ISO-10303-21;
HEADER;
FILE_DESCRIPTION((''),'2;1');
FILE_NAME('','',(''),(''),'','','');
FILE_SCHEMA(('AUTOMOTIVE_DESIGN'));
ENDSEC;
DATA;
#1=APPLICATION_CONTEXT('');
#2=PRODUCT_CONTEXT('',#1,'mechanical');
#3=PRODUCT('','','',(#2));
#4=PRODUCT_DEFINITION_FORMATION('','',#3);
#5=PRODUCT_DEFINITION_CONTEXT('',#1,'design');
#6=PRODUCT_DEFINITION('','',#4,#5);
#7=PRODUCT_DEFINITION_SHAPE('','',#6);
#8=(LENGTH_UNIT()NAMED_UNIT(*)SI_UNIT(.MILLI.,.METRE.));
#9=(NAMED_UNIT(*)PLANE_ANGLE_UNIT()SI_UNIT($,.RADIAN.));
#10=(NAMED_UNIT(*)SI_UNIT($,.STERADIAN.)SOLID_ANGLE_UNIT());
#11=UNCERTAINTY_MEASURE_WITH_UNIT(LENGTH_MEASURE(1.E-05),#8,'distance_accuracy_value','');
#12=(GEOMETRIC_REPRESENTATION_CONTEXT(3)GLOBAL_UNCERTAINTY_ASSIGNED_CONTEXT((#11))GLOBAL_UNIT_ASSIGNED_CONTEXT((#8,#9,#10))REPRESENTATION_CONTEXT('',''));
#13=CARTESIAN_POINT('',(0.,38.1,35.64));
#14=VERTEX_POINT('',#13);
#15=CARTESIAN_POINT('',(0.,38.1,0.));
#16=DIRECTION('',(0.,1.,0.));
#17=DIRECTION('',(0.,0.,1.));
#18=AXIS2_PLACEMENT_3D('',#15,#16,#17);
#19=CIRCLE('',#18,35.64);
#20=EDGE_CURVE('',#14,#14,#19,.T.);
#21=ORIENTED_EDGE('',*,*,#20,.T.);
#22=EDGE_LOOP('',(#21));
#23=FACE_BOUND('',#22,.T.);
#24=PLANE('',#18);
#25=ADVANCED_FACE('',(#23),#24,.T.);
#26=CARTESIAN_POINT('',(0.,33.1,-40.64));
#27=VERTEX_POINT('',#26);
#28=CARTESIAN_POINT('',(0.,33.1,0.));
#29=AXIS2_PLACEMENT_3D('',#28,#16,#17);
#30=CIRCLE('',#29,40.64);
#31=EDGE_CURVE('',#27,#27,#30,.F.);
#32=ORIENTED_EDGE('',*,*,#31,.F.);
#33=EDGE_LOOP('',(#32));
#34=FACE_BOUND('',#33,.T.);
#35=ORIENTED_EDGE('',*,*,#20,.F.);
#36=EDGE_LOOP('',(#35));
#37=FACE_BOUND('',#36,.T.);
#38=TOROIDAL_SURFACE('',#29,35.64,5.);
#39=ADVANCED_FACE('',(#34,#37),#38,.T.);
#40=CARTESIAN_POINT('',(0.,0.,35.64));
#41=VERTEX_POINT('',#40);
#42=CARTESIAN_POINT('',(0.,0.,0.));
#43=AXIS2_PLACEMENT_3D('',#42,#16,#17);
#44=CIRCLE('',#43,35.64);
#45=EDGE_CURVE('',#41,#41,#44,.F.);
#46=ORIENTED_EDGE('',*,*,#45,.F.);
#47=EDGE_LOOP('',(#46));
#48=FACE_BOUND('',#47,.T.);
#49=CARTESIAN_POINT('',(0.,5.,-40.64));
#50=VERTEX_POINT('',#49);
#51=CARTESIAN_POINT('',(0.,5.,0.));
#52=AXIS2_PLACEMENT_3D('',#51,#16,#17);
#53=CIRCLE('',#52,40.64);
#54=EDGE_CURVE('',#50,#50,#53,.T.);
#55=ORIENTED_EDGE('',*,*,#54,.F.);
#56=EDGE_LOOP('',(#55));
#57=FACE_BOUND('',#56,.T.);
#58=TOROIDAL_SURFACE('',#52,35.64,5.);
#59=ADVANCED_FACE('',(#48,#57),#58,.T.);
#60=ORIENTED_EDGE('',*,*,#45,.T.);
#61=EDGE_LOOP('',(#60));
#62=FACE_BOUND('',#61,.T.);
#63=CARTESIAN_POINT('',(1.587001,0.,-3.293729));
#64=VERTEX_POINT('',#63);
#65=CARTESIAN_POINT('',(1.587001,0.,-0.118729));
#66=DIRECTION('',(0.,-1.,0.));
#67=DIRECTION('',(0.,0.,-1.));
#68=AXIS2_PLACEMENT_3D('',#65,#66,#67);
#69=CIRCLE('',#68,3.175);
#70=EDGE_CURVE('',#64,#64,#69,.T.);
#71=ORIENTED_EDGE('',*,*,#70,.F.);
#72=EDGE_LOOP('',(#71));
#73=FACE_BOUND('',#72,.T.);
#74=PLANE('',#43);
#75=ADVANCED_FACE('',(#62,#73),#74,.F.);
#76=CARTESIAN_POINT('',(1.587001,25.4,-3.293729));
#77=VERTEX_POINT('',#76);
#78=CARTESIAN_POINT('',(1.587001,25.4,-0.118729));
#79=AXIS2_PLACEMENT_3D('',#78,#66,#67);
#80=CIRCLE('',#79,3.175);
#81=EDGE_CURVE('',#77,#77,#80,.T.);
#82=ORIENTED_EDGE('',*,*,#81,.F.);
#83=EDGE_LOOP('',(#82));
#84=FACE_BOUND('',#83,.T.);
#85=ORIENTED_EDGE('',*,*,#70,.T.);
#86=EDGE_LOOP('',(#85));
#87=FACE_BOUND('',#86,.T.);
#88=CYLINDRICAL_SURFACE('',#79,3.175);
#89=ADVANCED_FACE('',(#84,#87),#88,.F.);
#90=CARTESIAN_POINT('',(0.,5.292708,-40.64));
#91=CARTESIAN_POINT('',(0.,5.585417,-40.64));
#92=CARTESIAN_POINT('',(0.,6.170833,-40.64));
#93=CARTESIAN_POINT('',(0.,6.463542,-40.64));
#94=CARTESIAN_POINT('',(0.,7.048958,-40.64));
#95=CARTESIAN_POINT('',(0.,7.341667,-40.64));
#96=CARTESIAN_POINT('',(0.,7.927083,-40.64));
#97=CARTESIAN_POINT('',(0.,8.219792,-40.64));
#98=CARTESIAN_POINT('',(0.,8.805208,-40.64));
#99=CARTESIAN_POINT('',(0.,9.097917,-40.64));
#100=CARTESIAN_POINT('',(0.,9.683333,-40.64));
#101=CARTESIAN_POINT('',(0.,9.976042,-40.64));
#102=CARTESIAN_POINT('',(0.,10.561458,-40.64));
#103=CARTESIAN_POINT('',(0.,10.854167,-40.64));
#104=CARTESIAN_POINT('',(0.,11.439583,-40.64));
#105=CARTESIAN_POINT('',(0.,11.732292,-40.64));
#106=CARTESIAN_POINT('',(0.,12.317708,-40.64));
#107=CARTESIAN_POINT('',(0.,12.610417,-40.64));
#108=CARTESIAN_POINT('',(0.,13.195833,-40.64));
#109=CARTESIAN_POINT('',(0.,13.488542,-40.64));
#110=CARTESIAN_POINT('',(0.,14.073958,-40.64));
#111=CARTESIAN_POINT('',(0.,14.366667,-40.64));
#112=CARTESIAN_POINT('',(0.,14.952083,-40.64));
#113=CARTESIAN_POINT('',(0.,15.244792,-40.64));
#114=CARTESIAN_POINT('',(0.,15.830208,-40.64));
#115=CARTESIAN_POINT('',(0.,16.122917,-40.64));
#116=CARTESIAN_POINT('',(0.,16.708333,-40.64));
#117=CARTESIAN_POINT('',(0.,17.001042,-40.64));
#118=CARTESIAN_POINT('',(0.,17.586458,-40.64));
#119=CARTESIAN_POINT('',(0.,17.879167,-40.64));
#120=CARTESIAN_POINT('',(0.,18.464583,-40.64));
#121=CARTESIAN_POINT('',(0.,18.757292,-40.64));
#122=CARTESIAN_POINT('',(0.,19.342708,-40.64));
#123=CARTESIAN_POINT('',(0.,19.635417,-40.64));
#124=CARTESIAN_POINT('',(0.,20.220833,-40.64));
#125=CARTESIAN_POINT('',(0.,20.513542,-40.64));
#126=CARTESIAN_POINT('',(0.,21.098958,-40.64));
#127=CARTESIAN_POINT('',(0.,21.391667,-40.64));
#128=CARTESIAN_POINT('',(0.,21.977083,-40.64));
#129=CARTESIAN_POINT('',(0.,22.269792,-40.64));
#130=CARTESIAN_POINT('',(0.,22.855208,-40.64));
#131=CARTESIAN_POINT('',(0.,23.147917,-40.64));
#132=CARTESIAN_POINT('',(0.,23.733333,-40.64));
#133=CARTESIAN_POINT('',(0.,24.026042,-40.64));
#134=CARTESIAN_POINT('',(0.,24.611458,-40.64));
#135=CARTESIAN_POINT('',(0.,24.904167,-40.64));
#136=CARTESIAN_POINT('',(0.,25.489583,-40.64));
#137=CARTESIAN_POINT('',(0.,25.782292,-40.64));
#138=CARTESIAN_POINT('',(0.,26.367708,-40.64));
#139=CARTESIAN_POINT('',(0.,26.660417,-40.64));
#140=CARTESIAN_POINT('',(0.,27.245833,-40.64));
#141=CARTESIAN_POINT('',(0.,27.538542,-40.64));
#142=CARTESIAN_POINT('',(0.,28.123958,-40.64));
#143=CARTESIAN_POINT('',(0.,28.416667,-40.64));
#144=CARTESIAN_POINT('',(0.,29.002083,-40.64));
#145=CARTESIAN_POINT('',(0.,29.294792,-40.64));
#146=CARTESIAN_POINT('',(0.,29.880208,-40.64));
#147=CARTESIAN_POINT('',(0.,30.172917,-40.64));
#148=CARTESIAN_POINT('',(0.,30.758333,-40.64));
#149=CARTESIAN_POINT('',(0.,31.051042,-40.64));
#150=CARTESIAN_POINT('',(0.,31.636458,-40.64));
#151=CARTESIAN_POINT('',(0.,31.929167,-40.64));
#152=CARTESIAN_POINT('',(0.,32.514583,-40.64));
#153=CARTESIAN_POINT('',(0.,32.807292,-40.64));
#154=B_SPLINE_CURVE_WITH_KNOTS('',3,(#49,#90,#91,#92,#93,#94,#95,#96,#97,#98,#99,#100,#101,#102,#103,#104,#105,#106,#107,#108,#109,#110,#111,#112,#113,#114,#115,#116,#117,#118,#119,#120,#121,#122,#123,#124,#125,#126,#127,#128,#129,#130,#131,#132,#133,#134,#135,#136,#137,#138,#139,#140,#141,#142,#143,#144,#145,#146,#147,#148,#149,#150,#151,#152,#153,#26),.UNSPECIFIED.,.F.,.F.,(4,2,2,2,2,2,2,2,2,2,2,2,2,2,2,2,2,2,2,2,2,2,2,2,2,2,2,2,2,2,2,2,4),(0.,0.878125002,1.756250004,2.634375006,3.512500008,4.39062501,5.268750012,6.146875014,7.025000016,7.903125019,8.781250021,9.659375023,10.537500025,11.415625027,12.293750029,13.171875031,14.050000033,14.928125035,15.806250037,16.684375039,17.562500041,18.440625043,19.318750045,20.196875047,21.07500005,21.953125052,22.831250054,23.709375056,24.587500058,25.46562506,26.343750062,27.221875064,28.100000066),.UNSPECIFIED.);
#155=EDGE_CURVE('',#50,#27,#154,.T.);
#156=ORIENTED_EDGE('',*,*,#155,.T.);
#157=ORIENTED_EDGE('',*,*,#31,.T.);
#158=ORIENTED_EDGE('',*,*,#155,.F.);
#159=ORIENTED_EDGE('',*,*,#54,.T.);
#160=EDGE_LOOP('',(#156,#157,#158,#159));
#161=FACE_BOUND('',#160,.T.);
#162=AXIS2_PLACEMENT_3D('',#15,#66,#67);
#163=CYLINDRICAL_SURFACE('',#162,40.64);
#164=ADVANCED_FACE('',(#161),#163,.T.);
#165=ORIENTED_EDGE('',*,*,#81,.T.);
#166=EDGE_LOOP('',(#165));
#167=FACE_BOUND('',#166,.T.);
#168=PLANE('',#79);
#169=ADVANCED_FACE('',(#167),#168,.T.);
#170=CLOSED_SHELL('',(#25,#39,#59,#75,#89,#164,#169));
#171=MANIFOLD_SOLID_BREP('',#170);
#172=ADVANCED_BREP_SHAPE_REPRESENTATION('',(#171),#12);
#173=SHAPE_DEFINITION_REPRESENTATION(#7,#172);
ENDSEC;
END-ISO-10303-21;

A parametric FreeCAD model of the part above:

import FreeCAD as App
import Part
import Sketcher

V = App.Vector
Q = App.Units.Quantity


def edges_at(feature, points):
    """Names of the edges that pass closest to the given points."""
    edges = feature.Shape.Edges
    near = lambda p: min(range(len(edges)), key=lambda i: edges[i].distToShape(Part.Vertex(*p))[0])
    return sorted({f"Edge{near(p) + 1}" for p in points})

doc = App.newDocument("Part")
body = doc.addObject("PartDesign::Body", "Body")

sketch1 = body.newObject("Sketcher::SketchObject", "Sketch")
sketch1.AttachmentSupport = (doc.getObject("XZ_Plane"), [""])
sketch1.MapMode = "FlatFace"
sketch1.addGeometry(Part.Circle(V(0, 0, 0), V(0, 0, 1), 41), False)
sketch1.addConstraint(Sketcher.Constraint("Coincident", 0, 3, -1, 1))
sketch1.addConstraint(Sketcher.Constraint("Diameter", 0, Q("3.2 in")))
pad1 = body.newObject("PartDesign::Pad", "Pad")
pad1.Profile = sketch1
pad1.Length = Q("1.5 in")
pad1.Reversed = True
doc.recompute()

fillet = body.newObject("PartDesign::Fillet", "Fillet")
fillet.Base = (pad1, edges_at(pad1, [(0, 0, 40.64), (0, 38.1, 40.64)]))
fillet.Radius = 5

sketch2 = body.newObject("Sketcher::SketchObject", "Sketch001")
sketch2.AttachmentSupport = (doc.getObject("XZ_Plane"), [""])
sketch2.MapMode = "FlatFace"
sketch2.addGeometry(Part.Circle(V(1.6, -0.1, 0), V(0, 0, 1), 3.2), False)
sketch2.addConstraint(Sketcher.Constraint("Diameter", 0, Q("0.25 in")))
sketch2.addConstraint(Sketcher.Constraint("DistanceX", -1, 1, 0, 3, 1.587001))
sketch2.addConstraint(Sketcher.Constraint("DistanceY", 0, 3, -1, 1, 0.118729))
pocket1 = body.newObject("PartDesign::Pocket", "Pocket")
pocket1.Profile = sketch2
pocket1.Length = Q("1 in")

doc.recompute()
